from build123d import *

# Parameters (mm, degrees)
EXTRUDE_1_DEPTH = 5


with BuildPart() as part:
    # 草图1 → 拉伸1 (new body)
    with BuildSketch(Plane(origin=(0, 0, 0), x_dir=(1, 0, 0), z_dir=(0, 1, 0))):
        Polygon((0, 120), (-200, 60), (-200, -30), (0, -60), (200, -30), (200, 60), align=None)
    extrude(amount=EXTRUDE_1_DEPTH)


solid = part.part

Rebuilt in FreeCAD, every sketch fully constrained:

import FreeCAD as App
import Part
import Sketcher

V = App.Vector
Q = App.Units.Quantity

doc = App.newDocument("Part")
body = doc.addObject("PartDesign::Body", "Body")

# Sketch on XZ plane
sketch1 = body.newObject("Sketcher::SketchObject", "Sketch")
sketch1.AttachmentSupport = (doc.getObject("XZ_Plane"), [""])
sketch1.MapMode = "FlatFace"
sketch1.addGeometry([
    Part.LineSegment(V(0, -120, 0), V(-200, -60, 0)),  # 0
    Part.LineSegment(V(-200, -60, 0), V(-200, 30, 0)),  # 1
    Part.LineSegment(V(-200, 30, 0), V(0, 60, 0)),  # 2
    Part.LineSegment(V(0, 60, 0), V(200, 30, 0)),  # 3
    Part.LineSegment(V(200, 30, 0), V(200, -60, 0)),  # 4
    Part.LineSegment(V(200, -60, 0), V(0, -120, 0)),  # 5
], False)
sketch1.addConstraint([
    Sketcher.Constraint("Coincident", 0, 2, 1, 1),
    Sketcher.Constraint("Coincident", 1, 2, 2, 1),
    Sketcher.Constraint("Coincident", 2, 2, 3, 1),
    Sketcher.Constraint("Coincident", 3, 2, 4, 1),
    Sketcher.Constraint("Coincident", 4, 2, 5, 1),
    Sketcher.Constraint("Coincident", 5, 2, 0, 1),
    Sketcher.Constraint("Vertical", 1),
    Sketcher.Constraint("Vertical", 4),
    Sketcher.Constraint("Symmetric", 1, 2, 3, 2, -2),
    Sketcher.Constraint("PointOnObject", 2, 2, -2),
    Sketcher.Constraint("PointOnObject", 5, 2, -2),
    Sketcher.Constraint("Horizontal", 0, 2, 4, 2),
    Sketcher.Constraint("DistanceY", 1, 1, 1, 2, Q("90 mm")),
    Sketcher.Constraint("DistanceX", 0, 2, -1, 1, Q("200 mm")),
    Sketcher.Constraint("DistanceY", 0, 2, -1, 1, Q("60 mm")),
    Sketcher.Constraint("DistanceY", -1, 1, 2, 2, Q("60 mm")),
    Sketcher.Constraint("DistanceY", 5, 2, -1, 1, Q("120 mm")),
])
pad1 = body.newObject("PartDesign::Pad", "Pad")
pad1.Profile = sketch1
pad1.Length = 5
pad1.Reversed = True

doc.recompute()
